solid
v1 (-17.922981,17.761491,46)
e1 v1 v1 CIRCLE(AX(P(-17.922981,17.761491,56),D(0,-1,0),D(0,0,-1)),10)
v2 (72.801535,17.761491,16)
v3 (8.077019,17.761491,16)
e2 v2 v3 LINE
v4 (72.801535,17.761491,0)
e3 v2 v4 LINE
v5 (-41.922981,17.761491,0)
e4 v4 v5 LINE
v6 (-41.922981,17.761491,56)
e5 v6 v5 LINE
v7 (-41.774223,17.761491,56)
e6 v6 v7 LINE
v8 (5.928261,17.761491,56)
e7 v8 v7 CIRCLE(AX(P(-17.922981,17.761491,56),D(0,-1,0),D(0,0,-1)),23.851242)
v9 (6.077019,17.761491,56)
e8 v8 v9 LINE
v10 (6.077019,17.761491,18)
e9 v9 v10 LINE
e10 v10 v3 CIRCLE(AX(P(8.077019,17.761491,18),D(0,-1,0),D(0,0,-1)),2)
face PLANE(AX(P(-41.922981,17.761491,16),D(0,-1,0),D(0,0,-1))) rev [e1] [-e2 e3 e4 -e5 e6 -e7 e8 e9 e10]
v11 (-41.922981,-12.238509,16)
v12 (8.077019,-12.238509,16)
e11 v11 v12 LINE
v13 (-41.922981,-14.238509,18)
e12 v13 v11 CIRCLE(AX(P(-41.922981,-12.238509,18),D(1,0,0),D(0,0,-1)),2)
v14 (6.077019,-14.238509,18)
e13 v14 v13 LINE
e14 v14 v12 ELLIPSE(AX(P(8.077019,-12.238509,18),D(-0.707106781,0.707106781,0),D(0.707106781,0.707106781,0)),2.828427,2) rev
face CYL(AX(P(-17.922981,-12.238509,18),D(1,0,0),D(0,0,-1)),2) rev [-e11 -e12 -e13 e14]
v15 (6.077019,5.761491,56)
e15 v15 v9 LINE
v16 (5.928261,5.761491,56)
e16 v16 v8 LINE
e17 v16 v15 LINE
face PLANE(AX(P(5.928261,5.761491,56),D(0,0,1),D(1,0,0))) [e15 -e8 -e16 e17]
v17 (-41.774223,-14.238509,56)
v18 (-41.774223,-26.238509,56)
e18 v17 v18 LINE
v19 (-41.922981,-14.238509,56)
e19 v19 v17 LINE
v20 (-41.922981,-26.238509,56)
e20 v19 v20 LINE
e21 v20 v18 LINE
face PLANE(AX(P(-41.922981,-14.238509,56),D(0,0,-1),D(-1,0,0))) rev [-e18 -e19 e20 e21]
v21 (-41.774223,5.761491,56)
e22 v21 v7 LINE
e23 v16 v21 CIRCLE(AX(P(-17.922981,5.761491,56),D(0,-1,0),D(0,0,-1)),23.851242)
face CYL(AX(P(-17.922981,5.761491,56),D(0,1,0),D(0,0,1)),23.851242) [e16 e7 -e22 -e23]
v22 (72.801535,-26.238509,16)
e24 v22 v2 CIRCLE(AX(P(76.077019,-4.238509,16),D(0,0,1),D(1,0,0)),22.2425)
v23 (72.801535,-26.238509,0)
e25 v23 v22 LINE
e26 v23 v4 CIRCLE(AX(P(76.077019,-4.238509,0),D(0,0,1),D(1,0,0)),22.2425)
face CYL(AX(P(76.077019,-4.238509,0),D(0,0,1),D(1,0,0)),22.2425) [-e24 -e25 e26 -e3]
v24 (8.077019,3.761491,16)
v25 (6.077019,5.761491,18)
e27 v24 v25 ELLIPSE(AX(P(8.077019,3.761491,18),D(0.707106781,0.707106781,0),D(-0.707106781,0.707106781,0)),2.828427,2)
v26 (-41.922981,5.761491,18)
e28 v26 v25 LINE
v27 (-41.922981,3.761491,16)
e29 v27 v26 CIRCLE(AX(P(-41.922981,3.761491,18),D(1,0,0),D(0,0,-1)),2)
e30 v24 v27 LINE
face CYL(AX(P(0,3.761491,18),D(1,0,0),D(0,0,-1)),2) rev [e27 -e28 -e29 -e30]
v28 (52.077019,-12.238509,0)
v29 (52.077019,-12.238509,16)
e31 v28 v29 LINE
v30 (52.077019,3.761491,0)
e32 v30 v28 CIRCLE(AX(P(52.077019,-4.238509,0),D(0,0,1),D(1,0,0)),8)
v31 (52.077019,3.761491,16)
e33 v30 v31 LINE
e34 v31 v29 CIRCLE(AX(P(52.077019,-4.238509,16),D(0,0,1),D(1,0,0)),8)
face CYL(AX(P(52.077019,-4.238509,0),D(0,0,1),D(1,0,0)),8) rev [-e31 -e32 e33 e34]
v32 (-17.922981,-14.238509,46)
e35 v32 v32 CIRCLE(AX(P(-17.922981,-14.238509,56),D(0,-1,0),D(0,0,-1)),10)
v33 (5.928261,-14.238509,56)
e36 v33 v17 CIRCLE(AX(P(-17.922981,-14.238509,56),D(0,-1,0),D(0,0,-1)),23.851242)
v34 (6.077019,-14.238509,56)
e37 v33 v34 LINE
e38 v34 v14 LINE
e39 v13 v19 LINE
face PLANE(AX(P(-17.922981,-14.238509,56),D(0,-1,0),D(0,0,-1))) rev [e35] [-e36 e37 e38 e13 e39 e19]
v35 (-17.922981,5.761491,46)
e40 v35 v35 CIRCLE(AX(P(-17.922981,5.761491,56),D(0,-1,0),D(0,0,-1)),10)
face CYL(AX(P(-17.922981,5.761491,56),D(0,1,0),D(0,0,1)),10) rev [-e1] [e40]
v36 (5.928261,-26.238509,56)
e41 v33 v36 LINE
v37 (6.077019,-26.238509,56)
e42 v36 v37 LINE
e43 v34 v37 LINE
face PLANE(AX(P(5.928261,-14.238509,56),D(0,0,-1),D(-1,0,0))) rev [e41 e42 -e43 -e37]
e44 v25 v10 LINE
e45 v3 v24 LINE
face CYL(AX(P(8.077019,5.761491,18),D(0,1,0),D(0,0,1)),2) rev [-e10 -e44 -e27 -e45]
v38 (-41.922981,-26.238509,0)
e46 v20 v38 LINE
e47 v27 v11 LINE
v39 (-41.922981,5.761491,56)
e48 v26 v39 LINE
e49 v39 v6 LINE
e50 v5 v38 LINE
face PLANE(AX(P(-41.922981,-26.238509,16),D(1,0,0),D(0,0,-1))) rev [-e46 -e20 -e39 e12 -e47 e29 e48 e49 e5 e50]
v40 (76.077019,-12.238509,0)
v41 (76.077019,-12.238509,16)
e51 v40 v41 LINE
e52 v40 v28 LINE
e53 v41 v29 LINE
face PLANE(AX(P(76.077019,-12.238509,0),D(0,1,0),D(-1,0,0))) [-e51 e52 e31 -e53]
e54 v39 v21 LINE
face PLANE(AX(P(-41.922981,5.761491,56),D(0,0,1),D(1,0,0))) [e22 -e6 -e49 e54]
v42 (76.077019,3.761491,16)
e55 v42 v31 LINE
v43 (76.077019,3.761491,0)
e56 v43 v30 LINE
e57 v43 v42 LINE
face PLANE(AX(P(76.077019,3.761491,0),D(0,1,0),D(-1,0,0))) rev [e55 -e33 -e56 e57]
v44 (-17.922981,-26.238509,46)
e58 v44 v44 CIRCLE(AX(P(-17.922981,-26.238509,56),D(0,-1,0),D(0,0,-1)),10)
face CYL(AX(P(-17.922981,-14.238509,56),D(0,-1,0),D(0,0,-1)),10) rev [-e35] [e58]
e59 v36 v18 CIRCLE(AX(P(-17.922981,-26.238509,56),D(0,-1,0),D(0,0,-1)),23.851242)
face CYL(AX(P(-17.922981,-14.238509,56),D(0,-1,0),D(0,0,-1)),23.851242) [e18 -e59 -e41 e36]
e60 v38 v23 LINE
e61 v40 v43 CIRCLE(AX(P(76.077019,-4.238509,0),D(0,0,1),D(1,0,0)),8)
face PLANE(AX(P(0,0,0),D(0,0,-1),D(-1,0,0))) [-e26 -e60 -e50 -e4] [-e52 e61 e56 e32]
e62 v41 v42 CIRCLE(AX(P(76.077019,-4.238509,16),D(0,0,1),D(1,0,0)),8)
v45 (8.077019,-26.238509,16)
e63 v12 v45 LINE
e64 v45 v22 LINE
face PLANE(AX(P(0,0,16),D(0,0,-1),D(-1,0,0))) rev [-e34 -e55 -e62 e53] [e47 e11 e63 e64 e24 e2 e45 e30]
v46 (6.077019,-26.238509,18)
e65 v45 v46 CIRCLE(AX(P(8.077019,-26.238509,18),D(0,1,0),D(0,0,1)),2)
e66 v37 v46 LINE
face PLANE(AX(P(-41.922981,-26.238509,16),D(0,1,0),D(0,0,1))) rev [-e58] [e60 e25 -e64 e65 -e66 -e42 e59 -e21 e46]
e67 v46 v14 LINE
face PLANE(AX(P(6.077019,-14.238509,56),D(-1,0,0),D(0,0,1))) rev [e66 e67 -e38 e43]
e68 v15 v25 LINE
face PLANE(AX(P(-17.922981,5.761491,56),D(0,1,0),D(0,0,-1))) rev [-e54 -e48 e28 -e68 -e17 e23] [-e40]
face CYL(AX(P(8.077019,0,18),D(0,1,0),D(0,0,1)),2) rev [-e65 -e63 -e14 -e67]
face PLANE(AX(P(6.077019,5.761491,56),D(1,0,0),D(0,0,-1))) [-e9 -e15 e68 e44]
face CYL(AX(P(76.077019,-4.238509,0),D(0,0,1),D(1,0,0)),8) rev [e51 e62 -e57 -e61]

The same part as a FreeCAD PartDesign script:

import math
import FreeCAD as App
import Part
import Sketcher


def edges_at(feature, points):
    """Names of the edges that pass closest to the given points."""
    edges = feature.Shape.Edges
    near = lambda p: min(range(len(edges)), key=lambda i: edges[i].distToShape(Part.Vertex(*p))[0])
    return sorted({f"Edge{near(p) + 1}" for p in points})


def add_polygon(sketch, points):
    """Adds a closed chain of lines whose ends are joined by coincident constraints."""
    first, n = sketch.GeometryCount, len(points)
    for a, b in zip(points, points[1:] + points[:1]):
        sketch.addGeometry(Part.LineSegment(App.Vector(*a, 0), App.Vector(*b, 0)), False)
    for i in range(n):
        sketch.addConstraint(Sketcher.Constraint("Coincident", first + i, 2, first + (i + 1) % n, 1))

doc = App.newDocument("Part")
body = doc.addObject("PartDesign::Body", "Body")

# Sketch on XY plane
sketch1 = body.newObject("Sketcher::SketchObject", "Sketch")
sketch1.AttachmentSupport = (doc.getObject("XY_Plane"), [""])
sketch1.MapMode = "FlatFace"
add_polygon(sketch1, [(-41.922981, 17.761491), (-41.922981, -26.238509), (76.077019, -26.238509), (76.077019, 17.761491)])  # lines 0-3
sketch1.addConstraint(Sketcher.Constraint("Vertical", 0))
sketch1.addConstraint(Sketcher.Constraint("Horizontal", 1))
sketch1.addConstraint(Sketcher.Constraint("Vertical", 2))
sketch1.addConstraint(Sketcher.Constraint("Horizontal", 3))
sketch1.addConstraint(Sketcher.Constraint("DistanceX", 1, 1, 1, 2, 118.0))
sketch1.addConstraint(Sketcher.Constraint("DistanceY", 0, 2, 0, 1, 44.0))
sketch1.addConstraint(Sketcher.Constraint("DistanceX", 0, 2, -1, 1, 41.922981))
sketch1.addConstraint(Sketcher.Constraint("DistanceY", 0, 2, -1, 1, 26.238509))
pad1 = body.newObject("PartDesign::Pad", "Pad")
pad1.Profile = sketch1
pad1.Length = 16

# Sketch on XY plane
sketch2 = body.newObject("Sketcher::SketchObject", "Sketch001")
sketch2.AttachmentSupport = (doc.getObject("XY_Plane"), [""])
sketch2.MapMode = "FlatFace"
sketch2.AttachmentOffset = App.Placement(App.Vector(0, 0, 16), App.Rotation())
sketch2.addGeometry(Part.Circle(App.Vector(76.077019, -4.238509, 0), App.Vector(0, 0, 1), 22.2425), False)
sketch2.addConstraint(Sketcher.Constraint("Diameter", 0, 44.484999))
sketch2.addConstraint(Sketcher.Constraint("DistanceX", -1, 1, 0, 3, 76.077019))
sketch2.addConstraint(Sketcher.Constraint("DistanceY", 0, 3, -1, 1, 4.238509))
pad2 = body.newObject("PartDesign::Pad", "Pad001")
pad2.Profile = sketch2
pad2.Length = 16
pad2.Reversed = True

# Sketch on XY plane
sketch3 = body.newObject("Sketcher::SketchObject", "Sketch002")
sketch3.AttachmentSupport = (doc.getObject("XY_Plane"), [""])
sketch3.MapMode = "FlatFace"
sketch3.AttachmentOffset = App.Placement(App.Vector(0, 0, 16), App.Rotation())
sketch3.addGeometry(Part.LineSegment(App.Vector(52.077019, -12.238509, 0), App.Vector(76.077019, -12.238509, 0)), False)
sketch3.addGeometry(Part.ArcOfCircle(Part.Circle(App.Vector(76.077019, -4.238509, 0), App.Vector(0, 0, 1), 8), math.radians(-90), math.radians(90)), False)
sketch3.addGeometry(Part.LineSegment(App.Vector(76.077019, 3.761491, 0), App.Vector(52.077019, 3.761491, 0)), False)
sketch3.addGeometry(Part.ArcOfCircle(Part.Circle(App.Vector(52.077019, -4.238509, 0), App.Vector(0, 0, 1), 8), math.radians(90), math.radians(270)), False)
sketch3.addConstraint(Sketcher.Constraint("Tangent", 0, 2, 1, 1))
sketch3.addConstraint(Sketcher.Constraint("Tangent", 1, 2, 2, 1))
sketch3.addConstraint(Sketcher.Constraint("Tangent", 2, 2, 3, 1))
sketch3.addConstraint(Sketcher.Constraint("Tangent", 3, 2, 0, 1))
sketch3.addConstraint(Sketcher.Constraint("Horizontal", 0))
sketch3.addConstraint(Sketcher.Constraint("Horizontal", 2))
sketch3.addConstraint(Sketcher.Constraint("Radius", 1, 8.0))
sketch3.addConstraint(Sketcher.Constraint("DistanceX", 0, 1, 0, 2, 24.0))
sketch3.addConstraint(Sketcher.Constraint("DistanceX", -1, 1, 1, 3, 76.077019))
sketch3.addConstraint(Sketcher.Constraint("DistanceY", 1, 3, -1, 1, 4.238509))
pocket1 = body.newObject("PartDesign::Pocket", "Pocket")
pocket1.Profile = sketch3
pocket1.Type = "ThroughAll"

# Sketch on XZ plane
sketch4 = body.newObject("Sketcher::SketchObject", "Sketch003")
sketch4.AttachmentSupport = (doc.getObject("XZ_Plane"), [""])
sketch4.MapMode = "FlatFace"
sketch4.AttachmentOffset = App.Placement(App.Vector(0, 0, 26.238509), App.Rotation())
sketch4.addGeometry(Part.LineSegment(App.Vector(-41.922981, 56, 0), App.Vector(-41.922981, 16, 0)), False)
sketch4.addGeometry(Part.LineSegment(App.Vector(-41.922981, 16, 0), App.Vector(6.077019, 16, 0)), False)
sketch4.addGeometry(Part.LineSegment(App.Vector(6.077019, 16, 0), App.Vector(6.077019, 56, 0)), False)
sketch4.addGeometry(Part.LineSegment(App.Vector(6.077019, 56, 0), App.Vector(5.928261, 56, 0)), False)
sketch4.addGeometry(Part.ArcOfCircle(Part.Circle(App.Vector(-17.922981, 56, 0), App.Vector(0, 0, 1), 23.851242), math.radians(0), math.radians(180)), False)
sketch4.addGeometry(Part.LineSegment(App.Vector(-41.774223, 56, 0), App.Vector(-41.922981, 56, 0)), False)
sketch4.addGeometry(Part.Circle(App.Vector(-17.922981, 56, 0), App.Vector(0, 0, 1), 10), False)
sketch4.addConstraint(Sketcher.Constraint("Coincident", 0, 2, 1, 1))
sketch4.addConstraint(Sketcher.Constraint("Coincident", 1, 2, 2, 1))
sketch4.addConstraint(Sketcher.Constraint("Coincident", 2, 2, 3, 1))
sketch4.addConstraint(Sketcher.Constraint("Coincident", 3, 2, 4, 1))
sketch4.addConstraint(Sketcher.Constraint("Coincident", 4, 2, 5, 1))
sketch4.addConstraint(Sketcher.Constraint("Coincident", 5, 2, 0, 1))
sketch4.addConstraint(Sketcher.Constraint("Vertical", 0))
sketch4.addConstraint(Sketcher.Constraint("Horizontal", 1))
sketch4.addConstraint(Sketcher.Constraint("Vertical", 2))
sketch4.addConstraint(Sketcher.Constraint("Horizontal", 3))
sketch4.addConstraint(Sketcher.Constraint("Horizontal", 5))
sketch4.addConstraint(Sketcher.Constraint("Coincident", 6, 3, 4, 3))
sketch4.addConstraint(Sketcher.Constraint("Horizontal", 6, 3, 2, 2))
sketch4.addConstraint(Sketcher.Constraint("Horizontal", 3, 2, 4, 2))
sketch4.addConstraint(Sketcher.Constraint("Equal", 3, 5))
sketch4.addConstraint(Sketcher.Constraint("Diameter", 6, 20.0))
sketch4.addConstraint(Sketcher.Constraint("DistanceX", 1, 1, 1, 2, 48.0))
sketch4.addConstraint(Sketcher.Constraint("DistanceY", 0, 2, 0, 1, 40.0))
sketch4.addConstraint(Sketcher.Constraint("DistanceY", -1, 1, 4, 3, 56.0))
sketch4.addConstraint(Sketcher.Constraint("Radius", 4, 23.851242))
sketch4.addConstraint(Sketcher.Constraint("DistanceX", 4, 3, -1, 1, 17.922981))
pad3 = body.newObject("PartDesign::Pad", "Pad002")
pad3.Profile = sketch4
pad3.Length = 12
pad3.Reversed = True
doc.recompute()

datumplane = body.newObject("PartDesign::Plane", "DatumPlane")
datumplane.AttachmentSupport = (doc.getObject("XZ_Plane"), [""])
datumplane.MapMode = "FlatFace"
datumplane.AttachmentOffset = App.Placement(App.Vector(0, 0, 4.238509), App.Rotation())
mirrored = body.newObject("PartDesign::Mirrored", "Mirrored")
mirrored.Originals = [pad3]
mirrored.MirrorPlane = (datumplane, [""])
body.Tip = mirrored
doc.recompute()

fillet = body.newObject("PartDesign::Fillet", "Fillet")
fillet.Base = (mirrored, edges_at(mirrored, [
    (6.077, -20.239, 16),
    (-17.923, -14.239, 16),
    (-17.923, 5.761, 16),
    (6.077, 11.761, 16),
]))
fillet.Radius = 2

doc.recompute()
